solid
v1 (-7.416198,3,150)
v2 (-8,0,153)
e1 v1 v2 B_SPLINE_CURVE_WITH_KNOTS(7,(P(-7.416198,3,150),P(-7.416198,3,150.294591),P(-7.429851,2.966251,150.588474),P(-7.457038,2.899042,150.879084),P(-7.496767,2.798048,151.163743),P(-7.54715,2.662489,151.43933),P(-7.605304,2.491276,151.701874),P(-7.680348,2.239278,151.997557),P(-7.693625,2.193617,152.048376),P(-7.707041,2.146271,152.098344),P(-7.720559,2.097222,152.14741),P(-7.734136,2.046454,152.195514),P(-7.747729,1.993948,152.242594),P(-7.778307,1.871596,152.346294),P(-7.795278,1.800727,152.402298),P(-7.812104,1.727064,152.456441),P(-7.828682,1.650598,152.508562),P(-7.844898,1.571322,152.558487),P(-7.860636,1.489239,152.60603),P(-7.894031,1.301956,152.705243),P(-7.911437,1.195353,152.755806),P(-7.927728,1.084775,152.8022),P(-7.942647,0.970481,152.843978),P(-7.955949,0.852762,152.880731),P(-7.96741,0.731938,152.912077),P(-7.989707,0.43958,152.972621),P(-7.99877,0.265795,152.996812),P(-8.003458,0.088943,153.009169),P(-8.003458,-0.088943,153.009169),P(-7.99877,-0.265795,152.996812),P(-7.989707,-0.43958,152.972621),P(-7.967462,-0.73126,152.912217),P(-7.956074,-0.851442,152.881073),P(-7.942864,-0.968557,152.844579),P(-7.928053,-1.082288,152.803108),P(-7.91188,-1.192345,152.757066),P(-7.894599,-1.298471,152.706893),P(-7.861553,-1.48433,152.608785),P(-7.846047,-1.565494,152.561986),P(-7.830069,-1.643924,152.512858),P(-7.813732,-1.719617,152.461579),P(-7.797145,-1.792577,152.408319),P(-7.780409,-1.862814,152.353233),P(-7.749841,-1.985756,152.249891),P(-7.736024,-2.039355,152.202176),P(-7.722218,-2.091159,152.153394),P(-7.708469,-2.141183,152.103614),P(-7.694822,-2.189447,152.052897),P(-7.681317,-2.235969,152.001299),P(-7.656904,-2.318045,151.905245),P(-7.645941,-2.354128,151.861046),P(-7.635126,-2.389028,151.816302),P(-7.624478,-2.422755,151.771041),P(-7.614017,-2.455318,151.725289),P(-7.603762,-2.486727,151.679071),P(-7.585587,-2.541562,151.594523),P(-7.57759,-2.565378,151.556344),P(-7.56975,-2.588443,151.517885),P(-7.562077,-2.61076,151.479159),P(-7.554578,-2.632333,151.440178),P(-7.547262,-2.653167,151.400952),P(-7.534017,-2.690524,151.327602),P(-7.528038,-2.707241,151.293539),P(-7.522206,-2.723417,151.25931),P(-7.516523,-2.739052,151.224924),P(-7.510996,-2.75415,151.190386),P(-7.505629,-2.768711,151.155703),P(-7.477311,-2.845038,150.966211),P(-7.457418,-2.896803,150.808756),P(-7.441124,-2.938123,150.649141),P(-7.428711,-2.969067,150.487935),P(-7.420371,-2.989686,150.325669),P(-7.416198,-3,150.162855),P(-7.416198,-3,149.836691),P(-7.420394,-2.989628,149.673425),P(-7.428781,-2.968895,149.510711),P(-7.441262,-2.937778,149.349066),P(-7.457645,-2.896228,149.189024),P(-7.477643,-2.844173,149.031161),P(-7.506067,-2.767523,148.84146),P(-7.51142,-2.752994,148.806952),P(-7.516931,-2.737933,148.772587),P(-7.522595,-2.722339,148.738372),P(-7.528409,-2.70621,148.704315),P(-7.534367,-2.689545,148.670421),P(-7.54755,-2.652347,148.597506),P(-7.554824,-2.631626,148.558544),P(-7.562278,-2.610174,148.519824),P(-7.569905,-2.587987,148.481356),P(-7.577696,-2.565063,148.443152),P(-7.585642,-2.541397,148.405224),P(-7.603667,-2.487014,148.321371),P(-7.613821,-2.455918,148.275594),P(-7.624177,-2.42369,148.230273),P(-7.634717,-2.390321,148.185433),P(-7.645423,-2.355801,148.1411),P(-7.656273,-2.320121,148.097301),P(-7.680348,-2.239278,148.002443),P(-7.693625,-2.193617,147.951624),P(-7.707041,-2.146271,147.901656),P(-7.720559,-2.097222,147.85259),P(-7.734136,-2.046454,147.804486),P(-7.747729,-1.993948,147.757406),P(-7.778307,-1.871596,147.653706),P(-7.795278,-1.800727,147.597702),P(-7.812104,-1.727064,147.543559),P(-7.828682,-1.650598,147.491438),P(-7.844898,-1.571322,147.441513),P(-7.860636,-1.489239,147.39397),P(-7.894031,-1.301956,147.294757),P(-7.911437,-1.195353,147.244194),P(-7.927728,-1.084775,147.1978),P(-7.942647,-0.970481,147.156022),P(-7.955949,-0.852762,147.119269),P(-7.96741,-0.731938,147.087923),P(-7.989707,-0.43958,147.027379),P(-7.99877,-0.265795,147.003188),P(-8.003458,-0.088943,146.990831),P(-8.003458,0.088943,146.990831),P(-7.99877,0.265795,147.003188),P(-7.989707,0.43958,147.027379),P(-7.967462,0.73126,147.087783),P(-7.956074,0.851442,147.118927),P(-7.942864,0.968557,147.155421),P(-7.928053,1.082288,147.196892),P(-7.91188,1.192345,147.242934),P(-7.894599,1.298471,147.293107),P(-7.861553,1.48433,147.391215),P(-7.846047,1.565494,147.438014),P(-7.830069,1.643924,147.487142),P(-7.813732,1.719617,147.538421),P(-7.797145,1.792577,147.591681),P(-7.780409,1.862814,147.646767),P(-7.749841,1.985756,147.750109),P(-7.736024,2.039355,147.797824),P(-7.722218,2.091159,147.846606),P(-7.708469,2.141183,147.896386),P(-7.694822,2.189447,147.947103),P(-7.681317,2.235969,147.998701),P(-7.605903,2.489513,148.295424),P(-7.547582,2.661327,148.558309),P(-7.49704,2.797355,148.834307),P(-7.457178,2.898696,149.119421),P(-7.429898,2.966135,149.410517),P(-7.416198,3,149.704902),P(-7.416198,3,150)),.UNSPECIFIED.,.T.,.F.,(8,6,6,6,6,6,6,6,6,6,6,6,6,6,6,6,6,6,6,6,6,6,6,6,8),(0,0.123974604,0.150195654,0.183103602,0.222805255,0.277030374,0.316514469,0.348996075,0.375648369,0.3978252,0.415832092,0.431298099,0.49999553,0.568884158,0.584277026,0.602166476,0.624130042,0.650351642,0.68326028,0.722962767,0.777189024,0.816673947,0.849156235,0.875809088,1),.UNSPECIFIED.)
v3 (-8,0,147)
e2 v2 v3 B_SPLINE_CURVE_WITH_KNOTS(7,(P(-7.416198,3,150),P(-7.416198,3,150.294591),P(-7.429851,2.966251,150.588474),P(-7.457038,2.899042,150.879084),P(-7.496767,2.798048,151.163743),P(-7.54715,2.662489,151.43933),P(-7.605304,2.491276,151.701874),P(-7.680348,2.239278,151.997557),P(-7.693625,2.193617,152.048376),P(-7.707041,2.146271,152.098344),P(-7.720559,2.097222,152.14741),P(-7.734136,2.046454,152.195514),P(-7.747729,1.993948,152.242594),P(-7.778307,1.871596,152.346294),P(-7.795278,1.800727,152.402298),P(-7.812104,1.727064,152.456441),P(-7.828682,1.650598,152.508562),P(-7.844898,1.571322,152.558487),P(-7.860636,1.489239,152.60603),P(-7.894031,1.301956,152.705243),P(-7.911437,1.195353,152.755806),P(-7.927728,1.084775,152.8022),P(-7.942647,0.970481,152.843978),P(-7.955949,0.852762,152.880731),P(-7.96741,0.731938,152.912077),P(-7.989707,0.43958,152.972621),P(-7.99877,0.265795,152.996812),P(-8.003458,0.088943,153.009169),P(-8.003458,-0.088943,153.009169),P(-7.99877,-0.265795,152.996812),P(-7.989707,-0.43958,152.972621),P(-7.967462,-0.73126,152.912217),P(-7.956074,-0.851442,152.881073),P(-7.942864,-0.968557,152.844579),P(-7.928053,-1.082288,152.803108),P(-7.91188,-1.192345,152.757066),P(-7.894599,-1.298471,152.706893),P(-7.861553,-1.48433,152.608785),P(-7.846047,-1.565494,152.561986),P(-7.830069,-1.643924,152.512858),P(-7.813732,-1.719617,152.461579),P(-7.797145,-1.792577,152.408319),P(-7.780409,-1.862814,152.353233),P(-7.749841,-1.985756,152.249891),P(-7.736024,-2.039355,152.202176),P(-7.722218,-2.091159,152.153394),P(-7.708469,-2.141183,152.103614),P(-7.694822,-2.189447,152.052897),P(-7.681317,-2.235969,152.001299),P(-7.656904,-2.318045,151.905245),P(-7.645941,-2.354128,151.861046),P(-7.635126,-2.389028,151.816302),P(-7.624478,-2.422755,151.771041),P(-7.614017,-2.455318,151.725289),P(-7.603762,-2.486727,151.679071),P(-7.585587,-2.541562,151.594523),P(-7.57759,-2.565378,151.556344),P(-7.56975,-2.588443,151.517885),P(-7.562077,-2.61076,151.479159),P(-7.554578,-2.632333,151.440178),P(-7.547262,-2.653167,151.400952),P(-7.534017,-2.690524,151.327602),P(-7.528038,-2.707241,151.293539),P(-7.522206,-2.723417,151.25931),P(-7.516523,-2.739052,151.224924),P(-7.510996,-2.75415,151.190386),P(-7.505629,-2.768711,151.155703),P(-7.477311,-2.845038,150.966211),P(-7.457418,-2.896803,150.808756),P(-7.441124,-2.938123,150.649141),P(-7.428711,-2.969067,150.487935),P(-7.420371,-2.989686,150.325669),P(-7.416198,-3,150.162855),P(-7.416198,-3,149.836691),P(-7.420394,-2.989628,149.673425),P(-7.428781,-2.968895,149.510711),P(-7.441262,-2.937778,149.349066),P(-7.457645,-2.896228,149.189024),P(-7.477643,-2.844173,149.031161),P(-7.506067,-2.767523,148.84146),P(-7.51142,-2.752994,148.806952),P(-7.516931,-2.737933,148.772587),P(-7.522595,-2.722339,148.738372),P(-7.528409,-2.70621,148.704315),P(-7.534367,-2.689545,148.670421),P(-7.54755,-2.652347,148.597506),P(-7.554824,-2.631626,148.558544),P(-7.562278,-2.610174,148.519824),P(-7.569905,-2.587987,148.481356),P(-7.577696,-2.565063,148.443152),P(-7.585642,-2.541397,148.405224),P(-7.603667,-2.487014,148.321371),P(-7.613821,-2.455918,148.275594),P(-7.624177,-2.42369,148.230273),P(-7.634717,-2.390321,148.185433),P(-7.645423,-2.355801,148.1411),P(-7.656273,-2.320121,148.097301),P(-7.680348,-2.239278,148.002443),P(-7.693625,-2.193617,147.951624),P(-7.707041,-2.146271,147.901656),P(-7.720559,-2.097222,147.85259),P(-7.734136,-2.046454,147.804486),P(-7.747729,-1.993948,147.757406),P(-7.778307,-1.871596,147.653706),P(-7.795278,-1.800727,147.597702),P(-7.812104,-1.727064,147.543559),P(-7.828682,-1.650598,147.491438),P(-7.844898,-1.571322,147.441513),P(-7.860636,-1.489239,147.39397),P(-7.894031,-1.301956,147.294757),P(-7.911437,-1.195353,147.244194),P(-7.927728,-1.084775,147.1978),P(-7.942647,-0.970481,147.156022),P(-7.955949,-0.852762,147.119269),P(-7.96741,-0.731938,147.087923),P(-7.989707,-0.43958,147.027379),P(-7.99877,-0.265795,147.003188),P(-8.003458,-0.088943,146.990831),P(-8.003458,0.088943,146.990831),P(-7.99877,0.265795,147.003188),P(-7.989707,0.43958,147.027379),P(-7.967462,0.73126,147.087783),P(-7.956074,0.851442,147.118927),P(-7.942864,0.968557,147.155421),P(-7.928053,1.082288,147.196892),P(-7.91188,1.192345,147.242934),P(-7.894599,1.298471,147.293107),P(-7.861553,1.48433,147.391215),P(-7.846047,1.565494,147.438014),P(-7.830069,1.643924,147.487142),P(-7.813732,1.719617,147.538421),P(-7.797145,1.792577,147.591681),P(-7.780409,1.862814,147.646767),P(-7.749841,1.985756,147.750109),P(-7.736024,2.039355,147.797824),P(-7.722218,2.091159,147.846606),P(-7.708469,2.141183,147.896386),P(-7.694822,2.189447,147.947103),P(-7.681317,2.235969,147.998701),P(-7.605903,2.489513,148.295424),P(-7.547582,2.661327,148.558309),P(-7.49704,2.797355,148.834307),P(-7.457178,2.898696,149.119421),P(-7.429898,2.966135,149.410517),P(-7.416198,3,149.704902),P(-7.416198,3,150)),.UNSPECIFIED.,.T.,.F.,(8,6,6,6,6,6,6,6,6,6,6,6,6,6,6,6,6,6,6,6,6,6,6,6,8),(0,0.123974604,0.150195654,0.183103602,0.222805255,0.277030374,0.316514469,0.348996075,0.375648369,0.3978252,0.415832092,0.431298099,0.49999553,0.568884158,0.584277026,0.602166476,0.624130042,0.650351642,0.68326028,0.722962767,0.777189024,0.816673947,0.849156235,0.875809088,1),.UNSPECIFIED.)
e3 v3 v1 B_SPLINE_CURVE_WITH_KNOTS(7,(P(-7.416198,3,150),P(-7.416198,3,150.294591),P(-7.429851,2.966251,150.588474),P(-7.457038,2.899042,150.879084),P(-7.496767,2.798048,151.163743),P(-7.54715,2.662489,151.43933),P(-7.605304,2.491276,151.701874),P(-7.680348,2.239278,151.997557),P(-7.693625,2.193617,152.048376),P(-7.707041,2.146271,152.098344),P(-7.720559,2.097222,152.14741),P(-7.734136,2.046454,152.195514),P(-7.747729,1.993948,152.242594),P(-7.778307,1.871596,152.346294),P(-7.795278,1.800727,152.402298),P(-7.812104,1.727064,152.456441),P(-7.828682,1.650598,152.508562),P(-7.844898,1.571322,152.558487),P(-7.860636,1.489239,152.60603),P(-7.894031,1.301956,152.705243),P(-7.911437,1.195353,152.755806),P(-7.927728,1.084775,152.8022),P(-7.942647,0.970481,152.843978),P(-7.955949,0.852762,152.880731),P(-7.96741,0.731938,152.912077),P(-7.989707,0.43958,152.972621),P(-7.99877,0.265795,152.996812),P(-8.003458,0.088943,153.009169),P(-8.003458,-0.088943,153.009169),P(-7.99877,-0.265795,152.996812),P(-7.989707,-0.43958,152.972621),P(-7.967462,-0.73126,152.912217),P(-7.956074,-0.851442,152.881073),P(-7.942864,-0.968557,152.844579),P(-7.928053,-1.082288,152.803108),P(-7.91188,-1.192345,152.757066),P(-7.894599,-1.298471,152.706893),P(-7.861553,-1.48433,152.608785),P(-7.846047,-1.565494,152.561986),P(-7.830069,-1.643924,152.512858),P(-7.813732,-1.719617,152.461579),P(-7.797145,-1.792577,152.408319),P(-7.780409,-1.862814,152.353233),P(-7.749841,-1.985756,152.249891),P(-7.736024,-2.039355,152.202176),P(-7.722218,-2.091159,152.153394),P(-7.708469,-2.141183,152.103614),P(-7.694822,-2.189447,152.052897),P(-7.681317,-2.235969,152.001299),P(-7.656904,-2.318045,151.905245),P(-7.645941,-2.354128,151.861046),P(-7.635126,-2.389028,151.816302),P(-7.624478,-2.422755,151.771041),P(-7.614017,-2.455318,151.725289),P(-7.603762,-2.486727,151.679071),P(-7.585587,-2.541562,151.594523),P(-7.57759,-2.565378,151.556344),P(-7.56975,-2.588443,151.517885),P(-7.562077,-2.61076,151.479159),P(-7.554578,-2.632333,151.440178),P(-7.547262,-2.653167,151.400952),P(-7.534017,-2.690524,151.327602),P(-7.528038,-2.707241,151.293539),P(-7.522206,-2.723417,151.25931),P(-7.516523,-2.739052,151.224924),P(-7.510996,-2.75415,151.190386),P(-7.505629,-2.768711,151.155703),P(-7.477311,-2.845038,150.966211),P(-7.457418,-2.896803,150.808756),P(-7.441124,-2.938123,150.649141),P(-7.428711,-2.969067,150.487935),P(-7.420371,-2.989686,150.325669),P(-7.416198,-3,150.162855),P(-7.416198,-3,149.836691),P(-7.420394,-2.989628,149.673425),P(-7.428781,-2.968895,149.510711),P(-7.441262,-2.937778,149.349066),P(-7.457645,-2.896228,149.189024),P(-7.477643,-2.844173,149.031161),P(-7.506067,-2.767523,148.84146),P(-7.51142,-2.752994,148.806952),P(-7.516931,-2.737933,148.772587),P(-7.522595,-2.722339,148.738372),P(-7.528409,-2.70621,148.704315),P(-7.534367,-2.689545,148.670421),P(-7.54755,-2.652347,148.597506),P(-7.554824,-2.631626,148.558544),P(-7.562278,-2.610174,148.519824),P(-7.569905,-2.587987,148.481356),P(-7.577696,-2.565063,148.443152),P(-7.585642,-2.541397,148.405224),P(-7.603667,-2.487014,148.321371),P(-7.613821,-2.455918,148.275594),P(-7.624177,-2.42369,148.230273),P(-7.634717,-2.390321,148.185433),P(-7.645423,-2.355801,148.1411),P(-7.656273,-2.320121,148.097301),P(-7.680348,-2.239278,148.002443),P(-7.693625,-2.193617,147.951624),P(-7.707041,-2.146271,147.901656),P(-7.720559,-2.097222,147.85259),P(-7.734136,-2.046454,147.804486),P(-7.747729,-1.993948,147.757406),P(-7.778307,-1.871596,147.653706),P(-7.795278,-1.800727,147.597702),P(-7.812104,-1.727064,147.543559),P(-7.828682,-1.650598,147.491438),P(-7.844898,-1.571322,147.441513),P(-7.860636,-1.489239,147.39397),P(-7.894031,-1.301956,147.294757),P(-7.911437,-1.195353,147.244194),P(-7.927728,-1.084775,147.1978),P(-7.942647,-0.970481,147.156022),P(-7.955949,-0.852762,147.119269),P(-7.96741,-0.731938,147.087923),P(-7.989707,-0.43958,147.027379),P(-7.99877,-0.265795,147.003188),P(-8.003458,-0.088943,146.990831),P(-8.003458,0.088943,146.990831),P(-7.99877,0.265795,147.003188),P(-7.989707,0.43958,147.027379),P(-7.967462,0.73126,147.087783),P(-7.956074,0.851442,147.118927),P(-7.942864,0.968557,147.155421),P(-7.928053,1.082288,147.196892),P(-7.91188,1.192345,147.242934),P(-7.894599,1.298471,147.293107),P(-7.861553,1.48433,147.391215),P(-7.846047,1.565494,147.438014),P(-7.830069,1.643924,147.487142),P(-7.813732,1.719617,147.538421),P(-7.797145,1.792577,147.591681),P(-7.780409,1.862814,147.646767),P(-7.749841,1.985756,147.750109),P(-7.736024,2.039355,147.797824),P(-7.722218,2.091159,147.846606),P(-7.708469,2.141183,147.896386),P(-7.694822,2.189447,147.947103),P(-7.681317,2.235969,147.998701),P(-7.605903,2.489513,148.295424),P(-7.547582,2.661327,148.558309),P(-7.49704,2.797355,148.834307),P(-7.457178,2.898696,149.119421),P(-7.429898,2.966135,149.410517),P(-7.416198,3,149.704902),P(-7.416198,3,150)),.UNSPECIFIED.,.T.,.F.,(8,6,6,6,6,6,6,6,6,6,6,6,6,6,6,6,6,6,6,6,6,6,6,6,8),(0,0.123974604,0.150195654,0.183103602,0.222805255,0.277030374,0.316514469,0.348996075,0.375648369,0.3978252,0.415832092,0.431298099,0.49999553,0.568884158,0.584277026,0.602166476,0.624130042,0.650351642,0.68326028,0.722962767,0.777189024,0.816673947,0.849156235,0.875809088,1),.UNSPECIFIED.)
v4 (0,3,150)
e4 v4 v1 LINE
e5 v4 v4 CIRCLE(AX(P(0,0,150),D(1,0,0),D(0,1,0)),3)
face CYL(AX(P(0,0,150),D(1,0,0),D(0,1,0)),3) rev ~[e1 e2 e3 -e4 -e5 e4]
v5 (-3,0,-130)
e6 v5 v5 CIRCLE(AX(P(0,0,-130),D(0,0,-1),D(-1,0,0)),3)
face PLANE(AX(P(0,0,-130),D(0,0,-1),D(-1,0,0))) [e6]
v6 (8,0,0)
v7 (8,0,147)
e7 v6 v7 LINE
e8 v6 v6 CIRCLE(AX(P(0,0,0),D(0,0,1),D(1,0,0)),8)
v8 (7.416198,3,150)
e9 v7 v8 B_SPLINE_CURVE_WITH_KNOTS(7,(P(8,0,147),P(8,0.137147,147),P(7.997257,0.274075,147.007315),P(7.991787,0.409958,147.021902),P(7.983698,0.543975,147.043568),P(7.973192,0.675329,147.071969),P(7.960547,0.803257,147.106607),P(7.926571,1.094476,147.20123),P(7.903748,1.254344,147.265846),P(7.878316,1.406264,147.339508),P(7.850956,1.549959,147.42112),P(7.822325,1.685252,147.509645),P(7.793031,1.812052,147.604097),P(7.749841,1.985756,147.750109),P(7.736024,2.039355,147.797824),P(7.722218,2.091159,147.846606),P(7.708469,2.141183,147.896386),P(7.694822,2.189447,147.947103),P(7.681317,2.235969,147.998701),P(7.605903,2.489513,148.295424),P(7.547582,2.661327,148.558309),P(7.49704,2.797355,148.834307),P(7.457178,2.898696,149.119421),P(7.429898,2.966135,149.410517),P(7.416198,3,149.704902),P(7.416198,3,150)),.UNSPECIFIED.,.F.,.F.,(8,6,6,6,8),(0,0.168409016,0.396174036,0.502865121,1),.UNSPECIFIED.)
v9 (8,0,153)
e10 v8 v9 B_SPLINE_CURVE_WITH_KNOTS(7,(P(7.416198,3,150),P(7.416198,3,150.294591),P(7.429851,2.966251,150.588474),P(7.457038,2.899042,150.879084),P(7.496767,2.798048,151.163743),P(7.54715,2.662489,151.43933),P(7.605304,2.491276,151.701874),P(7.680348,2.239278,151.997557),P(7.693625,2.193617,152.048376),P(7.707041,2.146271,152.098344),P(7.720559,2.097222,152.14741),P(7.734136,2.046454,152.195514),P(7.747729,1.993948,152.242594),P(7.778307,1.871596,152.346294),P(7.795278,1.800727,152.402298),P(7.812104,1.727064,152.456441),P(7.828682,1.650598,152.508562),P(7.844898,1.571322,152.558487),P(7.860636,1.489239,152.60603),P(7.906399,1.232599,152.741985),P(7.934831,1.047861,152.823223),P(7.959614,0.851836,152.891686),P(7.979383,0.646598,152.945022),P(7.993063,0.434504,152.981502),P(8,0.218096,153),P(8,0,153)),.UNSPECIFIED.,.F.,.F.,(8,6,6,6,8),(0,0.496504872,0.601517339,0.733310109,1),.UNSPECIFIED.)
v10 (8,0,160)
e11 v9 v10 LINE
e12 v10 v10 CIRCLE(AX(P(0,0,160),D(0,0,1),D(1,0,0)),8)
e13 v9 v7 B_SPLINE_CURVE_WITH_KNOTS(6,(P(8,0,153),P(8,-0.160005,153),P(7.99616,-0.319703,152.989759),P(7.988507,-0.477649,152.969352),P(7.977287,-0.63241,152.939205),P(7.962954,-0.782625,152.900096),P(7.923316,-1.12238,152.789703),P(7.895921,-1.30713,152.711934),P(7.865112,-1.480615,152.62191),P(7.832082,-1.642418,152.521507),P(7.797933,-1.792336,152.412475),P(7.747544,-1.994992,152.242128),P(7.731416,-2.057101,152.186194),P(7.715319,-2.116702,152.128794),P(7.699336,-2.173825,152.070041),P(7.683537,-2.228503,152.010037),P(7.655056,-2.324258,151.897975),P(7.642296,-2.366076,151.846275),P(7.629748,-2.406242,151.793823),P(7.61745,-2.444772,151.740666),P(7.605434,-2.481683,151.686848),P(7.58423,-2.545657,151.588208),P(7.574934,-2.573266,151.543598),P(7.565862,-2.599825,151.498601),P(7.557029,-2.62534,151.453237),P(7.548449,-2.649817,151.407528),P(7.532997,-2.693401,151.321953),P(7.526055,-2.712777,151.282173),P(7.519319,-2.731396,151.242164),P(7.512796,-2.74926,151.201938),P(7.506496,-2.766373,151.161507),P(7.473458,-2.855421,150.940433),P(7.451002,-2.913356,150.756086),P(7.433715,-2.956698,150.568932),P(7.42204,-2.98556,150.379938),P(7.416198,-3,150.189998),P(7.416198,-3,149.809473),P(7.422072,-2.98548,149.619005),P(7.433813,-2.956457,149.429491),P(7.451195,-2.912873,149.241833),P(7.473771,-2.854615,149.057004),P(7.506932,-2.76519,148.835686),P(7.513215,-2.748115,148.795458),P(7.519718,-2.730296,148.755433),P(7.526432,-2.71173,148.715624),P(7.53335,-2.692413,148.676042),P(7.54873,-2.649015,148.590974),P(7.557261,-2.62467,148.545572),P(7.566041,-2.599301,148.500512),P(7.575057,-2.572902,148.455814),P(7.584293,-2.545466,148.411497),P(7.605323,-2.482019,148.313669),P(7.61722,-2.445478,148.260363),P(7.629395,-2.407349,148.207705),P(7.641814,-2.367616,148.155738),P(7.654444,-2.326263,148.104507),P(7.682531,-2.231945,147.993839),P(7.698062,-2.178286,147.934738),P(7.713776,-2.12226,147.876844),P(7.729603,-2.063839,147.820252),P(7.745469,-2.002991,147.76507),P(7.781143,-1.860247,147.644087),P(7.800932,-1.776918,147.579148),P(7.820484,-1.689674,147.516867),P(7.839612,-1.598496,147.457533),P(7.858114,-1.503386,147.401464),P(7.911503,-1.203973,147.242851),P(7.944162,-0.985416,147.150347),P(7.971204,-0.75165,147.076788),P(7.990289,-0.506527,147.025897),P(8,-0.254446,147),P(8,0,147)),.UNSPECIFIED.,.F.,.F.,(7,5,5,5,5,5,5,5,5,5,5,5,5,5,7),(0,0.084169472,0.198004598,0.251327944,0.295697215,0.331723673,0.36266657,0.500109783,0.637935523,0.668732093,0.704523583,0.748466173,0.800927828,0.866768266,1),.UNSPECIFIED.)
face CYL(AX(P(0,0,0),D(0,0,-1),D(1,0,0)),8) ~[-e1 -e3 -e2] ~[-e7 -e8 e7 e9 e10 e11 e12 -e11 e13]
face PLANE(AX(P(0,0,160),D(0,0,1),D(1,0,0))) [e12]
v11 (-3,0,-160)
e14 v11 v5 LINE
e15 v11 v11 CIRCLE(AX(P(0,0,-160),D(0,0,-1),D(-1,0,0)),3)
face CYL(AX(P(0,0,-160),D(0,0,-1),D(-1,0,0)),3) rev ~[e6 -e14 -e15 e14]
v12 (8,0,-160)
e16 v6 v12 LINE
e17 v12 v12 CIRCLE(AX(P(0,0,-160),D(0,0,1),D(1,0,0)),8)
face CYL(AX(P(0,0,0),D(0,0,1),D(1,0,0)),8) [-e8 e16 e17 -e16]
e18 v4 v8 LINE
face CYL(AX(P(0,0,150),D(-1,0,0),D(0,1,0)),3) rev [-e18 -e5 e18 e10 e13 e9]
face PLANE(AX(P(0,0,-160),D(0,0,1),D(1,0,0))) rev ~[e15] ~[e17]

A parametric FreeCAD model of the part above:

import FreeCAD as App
import Part
import Sketcher

doc = App.newDocument("Part")
params = doc.addObject("Spreadsheet::Sheet", "Params")
for row, (alias, value) in enumerate([
    ("sketch1_diameter", "16 mm"),
    ("pad1_length", "320 mm"),
    ("sketch2_diameter", "6 mm"),
    ("pocket1_length", "16 mm"),
    ("sketch3_diameter", "6 mm"),
    ("pocket2_length", "30 mm"),
], start=1):
    params.set(f"A{row}", alias)
    params.set(f"B{row}", "=" + value)
    params.setAlias(f"B{row}", alias)

body = doc.addObject("PartDesign::Body", "Body")

# Sketch on XY plane
sketch1 = doc.addObject("Sketcher::SketchObject", "Sketch")
body.addObject(sketch1)
sketch1.AttachmentSupport = (doc.XY_Plane, [""])
sketch1.MapMode = "FlatFace"
sketch1.addGeometry(Part.Circle(App.Vector(0, 0, 0), App.Vector(0, 0, 1), 8), False)
sketch1.addConstraint([
    Sketcher.Constraint("Coincident", 0, 3, -1, 1),
    Sketcher.Constraint("Diameter", 0, 16.0),
])
sketch1.setExpression("Constraints[1]", "Params.sketch1_diameter")
pad1 = doc.addObject("PartDesign::Pad", "Pad")
body.addObject(pad1)
pad1.Profile = sketch1
pad1.setExpression("Length", "Params.pad1_length")
pad1.Midplane = True

# Sketch on YZ plane
sketch2 = doc.addObject("Sketcher::SketchObject", "Sketch001")
body.addObject(sketch2)
sketch2.AttachmentSupport = (doc.YZ_Plane, [""])
sketch2.MapMode = "FlatFace"
sketch2.addGeometry(Part.Circle(App.Vector(0, 150, 0), App.Vector(0, 0, 1), 3), False)
sketch2.addConstraint([
    Sketcher.Constraint("PointOnObject", 0, 3, -2),
    Sketcher.Constraint("Diameter", 0, 6.0),
    Sketcher.Constraint("DistanceY", -1, 1, 0, 3, 150.0),
])
sketch2.setExpression("Constraints[1]", "Params.sketch2_diameter")
pocket1 = doc.addObject("PartDesign::Pocket", "Pocket")
body.addObject(pocket1)
pocket1.Profile = sketch2
pocket1.setExpression("Length", "Params.pocket1_length")
pocket1.Midplane = True

# Sketch on XY plane
sketch3 = doc.addObject("Sketcher::SketchObject", "Sketch002")
body.addObject(sketch3)
sketch3.AttachmentSupport = (doc.XY_Plane, [""])
sketch3.MapMode = "FlatFace"
sketch3.AttachmentOffset = App.Placement(App.Vector(0, 0, -160), App.Rotation())
sketch3.addGeometry(Part.Circle(App.Vector(0, 0, 0), App.Vector(0, 0, 1), 3), False)
sketch3.addConstraint([
    Sketcher.Constraint("Coincident", 0, 3, -1, 1),
    Sketcher.Constraint("Diameter", 0, 6.0),
])
sketch3.setExpression("Constraints[1]", "Params.sketch3_diameter")
pocket2 = doc.addObject("PartDesign::Pocket", "Pocket001")
body.addObject(pocket2)
pocket2.Profile = sketch3
pocket2.setExpression("Length", "Params.pocket2_length")
pocket2.Reversed = True

doc.recompute()
